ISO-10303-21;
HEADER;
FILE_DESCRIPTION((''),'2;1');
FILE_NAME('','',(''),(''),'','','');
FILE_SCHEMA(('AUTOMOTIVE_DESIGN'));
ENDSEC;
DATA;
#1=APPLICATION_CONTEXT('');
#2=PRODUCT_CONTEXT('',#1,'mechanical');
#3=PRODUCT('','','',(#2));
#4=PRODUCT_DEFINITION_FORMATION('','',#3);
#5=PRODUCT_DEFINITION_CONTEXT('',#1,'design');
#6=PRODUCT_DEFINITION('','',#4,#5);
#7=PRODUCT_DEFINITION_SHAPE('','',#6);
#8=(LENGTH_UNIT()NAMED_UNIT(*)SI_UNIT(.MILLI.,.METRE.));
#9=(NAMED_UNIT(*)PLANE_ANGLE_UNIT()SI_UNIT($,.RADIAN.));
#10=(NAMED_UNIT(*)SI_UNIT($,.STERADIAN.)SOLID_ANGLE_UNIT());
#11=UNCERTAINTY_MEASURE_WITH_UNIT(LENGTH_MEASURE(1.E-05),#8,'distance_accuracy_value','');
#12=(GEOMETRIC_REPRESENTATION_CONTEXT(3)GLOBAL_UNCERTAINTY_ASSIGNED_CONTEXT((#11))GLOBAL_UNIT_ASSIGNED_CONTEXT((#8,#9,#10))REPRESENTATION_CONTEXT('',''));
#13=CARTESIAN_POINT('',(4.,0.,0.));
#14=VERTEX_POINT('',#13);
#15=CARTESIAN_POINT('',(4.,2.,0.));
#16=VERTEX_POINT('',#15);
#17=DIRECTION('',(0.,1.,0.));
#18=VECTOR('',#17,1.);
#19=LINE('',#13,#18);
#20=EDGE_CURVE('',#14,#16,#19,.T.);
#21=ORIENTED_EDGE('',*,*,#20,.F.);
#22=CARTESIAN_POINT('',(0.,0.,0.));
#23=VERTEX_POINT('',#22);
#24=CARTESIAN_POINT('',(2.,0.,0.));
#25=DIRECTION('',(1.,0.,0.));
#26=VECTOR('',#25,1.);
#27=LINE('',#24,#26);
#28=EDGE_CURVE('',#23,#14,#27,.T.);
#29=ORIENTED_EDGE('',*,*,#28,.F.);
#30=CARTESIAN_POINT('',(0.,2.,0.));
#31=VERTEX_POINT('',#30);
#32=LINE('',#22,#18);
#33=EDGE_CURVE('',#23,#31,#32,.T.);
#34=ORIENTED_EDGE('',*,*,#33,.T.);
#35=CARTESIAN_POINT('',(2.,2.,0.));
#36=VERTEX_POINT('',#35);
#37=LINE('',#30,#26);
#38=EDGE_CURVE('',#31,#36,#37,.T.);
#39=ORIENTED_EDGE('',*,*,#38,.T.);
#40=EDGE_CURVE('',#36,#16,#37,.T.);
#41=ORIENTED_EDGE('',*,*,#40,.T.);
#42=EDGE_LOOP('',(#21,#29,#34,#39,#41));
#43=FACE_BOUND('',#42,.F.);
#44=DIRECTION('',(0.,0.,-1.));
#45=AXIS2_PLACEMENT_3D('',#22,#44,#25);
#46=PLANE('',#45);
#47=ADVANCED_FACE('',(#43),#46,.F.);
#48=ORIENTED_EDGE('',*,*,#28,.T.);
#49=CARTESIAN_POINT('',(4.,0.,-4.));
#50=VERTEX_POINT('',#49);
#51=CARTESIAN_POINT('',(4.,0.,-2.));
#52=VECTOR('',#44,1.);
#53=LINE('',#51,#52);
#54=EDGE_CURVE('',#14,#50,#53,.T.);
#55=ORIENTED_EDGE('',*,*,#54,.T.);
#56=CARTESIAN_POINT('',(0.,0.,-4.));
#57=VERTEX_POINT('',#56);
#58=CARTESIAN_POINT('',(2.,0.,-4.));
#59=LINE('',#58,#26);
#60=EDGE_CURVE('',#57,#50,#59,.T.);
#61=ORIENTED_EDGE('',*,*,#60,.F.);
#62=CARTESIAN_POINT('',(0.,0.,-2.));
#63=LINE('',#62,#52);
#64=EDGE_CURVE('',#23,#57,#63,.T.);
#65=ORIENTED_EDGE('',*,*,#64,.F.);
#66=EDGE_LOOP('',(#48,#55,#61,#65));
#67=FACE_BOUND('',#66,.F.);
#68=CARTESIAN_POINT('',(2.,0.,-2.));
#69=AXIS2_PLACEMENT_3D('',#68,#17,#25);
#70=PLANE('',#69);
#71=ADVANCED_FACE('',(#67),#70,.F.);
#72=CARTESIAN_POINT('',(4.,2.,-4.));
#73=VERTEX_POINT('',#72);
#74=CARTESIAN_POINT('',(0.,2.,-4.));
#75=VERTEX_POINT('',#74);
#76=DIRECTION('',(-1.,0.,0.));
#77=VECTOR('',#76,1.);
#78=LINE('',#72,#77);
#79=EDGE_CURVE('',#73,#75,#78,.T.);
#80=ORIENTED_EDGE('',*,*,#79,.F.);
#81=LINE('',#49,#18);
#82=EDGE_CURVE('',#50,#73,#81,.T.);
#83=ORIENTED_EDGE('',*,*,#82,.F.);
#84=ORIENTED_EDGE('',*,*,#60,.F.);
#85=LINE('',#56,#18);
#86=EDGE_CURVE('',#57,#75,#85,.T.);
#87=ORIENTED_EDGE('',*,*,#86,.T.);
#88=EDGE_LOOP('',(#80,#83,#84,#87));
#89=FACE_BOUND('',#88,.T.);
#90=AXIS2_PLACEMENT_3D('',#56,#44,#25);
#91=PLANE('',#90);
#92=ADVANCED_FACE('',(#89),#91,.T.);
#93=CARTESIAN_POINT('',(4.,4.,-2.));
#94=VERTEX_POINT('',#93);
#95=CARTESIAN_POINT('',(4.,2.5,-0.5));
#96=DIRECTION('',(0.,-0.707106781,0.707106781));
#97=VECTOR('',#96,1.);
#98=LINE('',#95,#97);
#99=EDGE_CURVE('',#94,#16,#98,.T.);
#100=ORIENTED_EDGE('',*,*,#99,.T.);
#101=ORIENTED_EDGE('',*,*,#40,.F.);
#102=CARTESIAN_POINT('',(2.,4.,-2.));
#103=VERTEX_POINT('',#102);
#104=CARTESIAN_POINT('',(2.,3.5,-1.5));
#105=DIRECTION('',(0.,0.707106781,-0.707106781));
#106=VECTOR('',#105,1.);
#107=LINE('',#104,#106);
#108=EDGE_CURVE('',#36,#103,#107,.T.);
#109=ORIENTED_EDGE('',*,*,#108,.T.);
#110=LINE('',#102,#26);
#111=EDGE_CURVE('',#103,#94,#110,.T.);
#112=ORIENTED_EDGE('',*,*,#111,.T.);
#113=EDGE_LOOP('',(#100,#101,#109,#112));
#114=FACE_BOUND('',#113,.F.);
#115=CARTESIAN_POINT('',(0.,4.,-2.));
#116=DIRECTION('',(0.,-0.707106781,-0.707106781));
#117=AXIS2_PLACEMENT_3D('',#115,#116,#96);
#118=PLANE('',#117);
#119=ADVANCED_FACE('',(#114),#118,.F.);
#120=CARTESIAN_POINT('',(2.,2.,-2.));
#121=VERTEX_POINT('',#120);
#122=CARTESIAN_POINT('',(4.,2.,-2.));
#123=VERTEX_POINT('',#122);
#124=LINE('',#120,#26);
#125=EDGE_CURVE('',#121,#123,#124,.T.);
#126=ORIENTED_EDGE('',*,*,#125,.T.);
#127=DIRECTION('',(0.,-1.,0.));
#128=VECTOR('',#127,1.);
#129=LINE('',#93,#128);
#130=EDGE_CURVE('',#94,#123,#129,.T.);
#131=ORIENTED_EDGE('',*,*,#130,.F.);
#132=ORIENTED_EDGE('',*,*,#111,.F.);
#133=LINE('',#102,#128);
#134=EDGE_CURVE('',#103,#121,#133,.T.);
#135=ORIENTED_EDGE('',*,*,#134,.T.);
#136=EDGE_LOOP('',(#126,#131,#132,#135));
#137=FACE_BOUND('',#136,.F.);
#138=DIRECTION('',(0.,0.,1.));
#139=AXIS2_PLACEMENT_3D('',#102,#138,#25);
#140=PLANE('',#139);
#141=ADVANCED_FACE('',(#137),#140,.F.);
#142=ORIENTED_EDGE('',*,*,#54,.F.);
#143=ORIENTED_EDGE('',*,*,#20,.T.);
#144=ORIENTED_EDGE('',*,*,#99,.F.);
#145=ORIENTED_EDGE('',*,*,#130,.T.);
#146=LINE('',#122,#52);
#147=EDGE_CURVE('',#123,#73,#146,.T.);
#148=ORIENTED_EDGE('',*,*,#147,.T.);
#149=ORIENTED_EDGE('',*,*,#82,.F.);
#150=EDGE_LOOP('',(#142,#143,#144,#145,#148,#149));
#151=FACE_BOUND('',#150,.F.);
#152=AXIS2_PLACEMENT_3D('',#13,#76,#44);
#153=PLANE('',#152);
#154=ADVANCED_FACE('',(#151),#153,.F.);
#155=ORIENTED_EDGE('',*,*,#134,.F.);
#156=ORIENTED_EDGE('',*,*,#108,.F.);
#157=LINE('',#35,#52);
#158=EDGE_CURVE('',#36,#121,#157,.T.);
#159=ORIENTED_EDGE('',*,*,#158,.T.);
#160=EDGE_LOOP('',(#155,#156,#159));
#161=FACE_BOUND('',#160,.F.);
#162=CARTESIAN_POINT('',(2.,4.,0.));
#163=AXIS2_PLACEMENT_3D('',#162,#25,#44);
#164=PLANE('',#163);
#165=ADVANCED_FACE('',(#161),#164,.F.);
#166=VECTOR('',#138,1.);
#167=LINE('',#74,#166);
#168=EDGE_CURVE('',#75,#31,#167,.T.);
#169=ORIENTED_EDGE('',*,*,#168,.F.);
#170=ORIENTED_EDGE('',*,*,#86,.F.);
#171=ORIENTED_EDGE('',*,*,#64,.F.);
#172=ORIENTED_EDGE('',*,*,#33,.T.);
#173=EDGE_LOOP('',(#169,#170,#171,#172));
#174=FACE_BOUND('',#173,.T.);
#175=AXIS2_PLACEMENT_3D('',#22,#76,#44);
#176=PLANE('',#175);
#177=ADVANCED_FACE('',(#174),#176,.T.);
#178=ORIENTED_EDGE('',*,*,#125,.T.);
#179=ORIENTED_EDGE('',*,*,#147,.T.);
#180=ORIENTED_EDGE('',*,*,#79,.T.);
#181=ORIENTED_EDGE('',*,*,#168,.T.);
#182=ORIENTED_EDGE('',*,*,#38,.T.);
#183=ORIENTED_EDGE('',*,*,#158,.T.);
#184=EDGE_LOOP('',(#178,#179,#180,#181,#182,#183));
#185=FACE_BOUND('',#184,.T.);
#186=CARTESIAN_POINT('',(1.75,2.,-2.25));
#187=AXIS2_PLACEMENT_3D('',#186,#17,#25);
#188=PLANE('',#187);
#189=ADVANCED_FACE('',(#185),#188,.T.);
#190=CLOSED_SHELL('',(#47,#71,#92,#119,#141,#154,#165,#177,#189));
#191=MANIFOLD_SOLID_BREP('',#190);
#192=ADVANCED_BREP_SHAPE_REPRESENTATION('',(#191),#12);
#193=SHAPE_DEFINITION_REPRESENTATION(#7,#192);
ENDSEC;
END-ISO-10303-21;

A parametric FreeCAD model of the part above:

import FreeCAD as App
import Part
import Sketcher
Q = App.Units.Quantity

doc = App.newDocument("Part")
body = doc.addObject("PartDesign::Body", "Body")

sketch1 = body.newObject("Sketcher::SketchObject", "Sketch")
sketch1.AttachmentSupport = (doc.getObject("XZ_Plane"), [""])
sketch1.MapMode = "FlatFace"
sketch1.addGeometry(Part.LineSegment(App.Vector(0, -4, 0), App.Vector(0, 0, 0)), False)
sketch1.addGeometry(Part.LineSegment(App.Vector(0, 0, 0), App.Vector(4, 0, 0)), False)
sketch1.addGeometry(Part.LineSegment(App.Vector(4, 0, 0), App.Vector(4, -4, 0)), False)
sketch1.addGeometry(Part.LineSegment(App.Vector(4, -4, 0), App.Vector(0, -4, 0)), False)
sketch1.addConstraint(Sketcher.Constraint("Coincident", 0, 2, 1, 1))
sketch1.addConstraint(Sketcher.Constraint("Coincident", 1, 2, 2, 1))
sketch1.addConstraint(Sketcher.Constraint("Coincident", 2, 2, 3, 1))
sketch1.addConstraint(Sketcher.Constraint("Coincident", 3, 2, 0, 1))
sketch1.addConstraint(Sketcher.Constraint("Vertical", 0))
sketch1.addConstraint(Sketcher.Constraint("Horizontal", 1))
sketch1.addConstraint(Sketcher.Constraint("Vertical", 2))
sketch1.addConstraint(Sketcher.Constraint("Horizontal", 3))
sketch1.addConstraint(Sketcher.Constraint("Coincident", 0, 2, -1, 1))
sketch1.addConstraint(Sketcher.Constraint("Equal", 3, 0))
sketch1.addConstraint(Sketcher.Constraint("DistanceX", 1, 1, 1, 2, Q("4 mm")))
pad1 = body.newObject("PartDesign::Pad", "Pad")
pad1.Profile = sketch1
pad1.Length = 4
pad1.Reversed = True

sketch2 = body.newObject("Sketcher::SketchObject", "Sketch001")
sketch2.AttachmentSupport = (doc.getObject("XZ_Plane"), [""])
sketch2.MapMode = "FlatFace"
sketch2.AttachmentOffset = App.Placement(App.Vector(0, 0, -4), App.Rotation())
sketch2.addGeometry(Part.LineSegment(App.Vector(2, 0, 0), App.Vector(2, -2, 0)), False)
sketch2.addGeometry(Part.LineSegment(App.Vector(2, -2, 0), App.Vector(4, -2, 0)), False)
sketch2.addGeometry(Part.LineSegment(App.Vector(4, -2, 0), App.Vector(4, -4, 0)), False)
sketch2.addGeometry(Part.LineSegment(App.Vector(4, -4, 0), App.Vector(0, -4, 0)), False)
sketch2.addGeometry(Part.LineSegment(App.Vector(0, -4, 0), App.Vector(0, 0, 0)), False)
sketch2.addGeometry(Part.LineSegment(App.Vector(0, 0, 0), App.Vector(2, 0, 0)), False)
sketch2.addConstraint(Sketcher.Constraint("Coincident", 0, 2, 1, 1))
sketch2.addConstraint(Sketcher.Constraint("Coincident", 1, 2, 2, 1))
sketch2.addConstraint(Sketcher.Constraint("Coincident", 2, 2, 3, 1))
sketch2.addConstraint(Sketcher.Constraint("Coincident", 3, 2, 4, 1))
sketch2.addConstraint(Sketcher.Constraint("Coincident", 4, 2, 5, 1))
sketch2.addConstraint(Sketcher.Constraint("Coincident", 5, 2, 0, 1))
sketch2.addConstraint(Sketcher.Constraint("Vertical", 0))
sketch2.addConstraint(Sketcher.Constraint("Horizontal", 1))
sketch2.addConstraint(Sketcher.Constraint("Vertical", 2))
sketch2.addConstraint(Sketcher.Constraint("Horizontal", 3))
sketch2.addConstraint(Sketcher.Constraint("Vertical", 4))
sketch2.addConstraint(Sketcher.Constraint("Horizontal", 5))
sketch2.addConstraint(Sketcher.Constraint("Coincident", 4, 2, -1, 1))
sketch2.addConstraint(Sketcher.Constraint("Equal", 1, 5))
sketch2.addConstraint(Sketcher.Constraint("Equal", 5, 0))
sketch2.addConstraint(Sketcher.Constraint("Equal", 0, 2))
sketch2.addConstraint(Sketcher.Constraint("DistanceX", 1, 1, 1, 2, Q("2 mm")))
pocket1 = body.newObject("PartDesign::Pocket", "Pocket")
pocket1.Profile = sketch2
pocket1.Length = 2
pocket1.Reversed = True

sketch3 = body.newObject("Sketcher::SketchObject", "Sketch002")
sketch3.AttachmentSupport = (doc.getObject("YZ_Plane"), [""])
sketch3.MapMode = "FlatFace"
sketch3.addGeometry(Part.LineSegment(App.Vector(2, 0, 0), App.Vector(4, 0, 0)), False)
sketch3.addGeometry(Part.LineSegment(App.Vector(4, 0, 0), App.Vector(4, -2, 0)), False)
sketch3.addGeometry(Part.LineSegment(App.Vector(4, -2, 0), App.Vector(2, 0, 0)), False)
sketch3.addConstraint(Sketcher.Constraint("Coincident", 0, 2, 1, 1))
sketch3.addConstraint(Sketcher.Constraint("Coincident", 1, 2, 2, 1))
sketch3.addConstraint(Sketcher.Constraint("Coincident", 2, 2, 0, 1))
sketch3.addConstraint(Sketcher.Constraint("Horizontal", 0))
sketch3.addConstraint(Sketcher.Constraint("Vertical", 1))
sketch3.addConstraint(Sketcher.Constraint("PointOnObject", 0, 2, -1))
sketch3.addConstraint(Sketcher.Constraint("Equal", 0, 1))
sketch3.addConstraint(Sketcher.Constraint("DistanceX", 0, 1, 0, 2, Q("2 mm")))
sketch3.addConstraint(Sketcher.Constraint("DistanceX", -1, 1, 0, 2, Q("4 mm")))
pocket2 = body.newObject("PartDesign::Pocket", "Pocket001")
pocket2.Profile = sketch3
pocket2.Length = 10
pocket2.Reversed = True

doc.recompute()
